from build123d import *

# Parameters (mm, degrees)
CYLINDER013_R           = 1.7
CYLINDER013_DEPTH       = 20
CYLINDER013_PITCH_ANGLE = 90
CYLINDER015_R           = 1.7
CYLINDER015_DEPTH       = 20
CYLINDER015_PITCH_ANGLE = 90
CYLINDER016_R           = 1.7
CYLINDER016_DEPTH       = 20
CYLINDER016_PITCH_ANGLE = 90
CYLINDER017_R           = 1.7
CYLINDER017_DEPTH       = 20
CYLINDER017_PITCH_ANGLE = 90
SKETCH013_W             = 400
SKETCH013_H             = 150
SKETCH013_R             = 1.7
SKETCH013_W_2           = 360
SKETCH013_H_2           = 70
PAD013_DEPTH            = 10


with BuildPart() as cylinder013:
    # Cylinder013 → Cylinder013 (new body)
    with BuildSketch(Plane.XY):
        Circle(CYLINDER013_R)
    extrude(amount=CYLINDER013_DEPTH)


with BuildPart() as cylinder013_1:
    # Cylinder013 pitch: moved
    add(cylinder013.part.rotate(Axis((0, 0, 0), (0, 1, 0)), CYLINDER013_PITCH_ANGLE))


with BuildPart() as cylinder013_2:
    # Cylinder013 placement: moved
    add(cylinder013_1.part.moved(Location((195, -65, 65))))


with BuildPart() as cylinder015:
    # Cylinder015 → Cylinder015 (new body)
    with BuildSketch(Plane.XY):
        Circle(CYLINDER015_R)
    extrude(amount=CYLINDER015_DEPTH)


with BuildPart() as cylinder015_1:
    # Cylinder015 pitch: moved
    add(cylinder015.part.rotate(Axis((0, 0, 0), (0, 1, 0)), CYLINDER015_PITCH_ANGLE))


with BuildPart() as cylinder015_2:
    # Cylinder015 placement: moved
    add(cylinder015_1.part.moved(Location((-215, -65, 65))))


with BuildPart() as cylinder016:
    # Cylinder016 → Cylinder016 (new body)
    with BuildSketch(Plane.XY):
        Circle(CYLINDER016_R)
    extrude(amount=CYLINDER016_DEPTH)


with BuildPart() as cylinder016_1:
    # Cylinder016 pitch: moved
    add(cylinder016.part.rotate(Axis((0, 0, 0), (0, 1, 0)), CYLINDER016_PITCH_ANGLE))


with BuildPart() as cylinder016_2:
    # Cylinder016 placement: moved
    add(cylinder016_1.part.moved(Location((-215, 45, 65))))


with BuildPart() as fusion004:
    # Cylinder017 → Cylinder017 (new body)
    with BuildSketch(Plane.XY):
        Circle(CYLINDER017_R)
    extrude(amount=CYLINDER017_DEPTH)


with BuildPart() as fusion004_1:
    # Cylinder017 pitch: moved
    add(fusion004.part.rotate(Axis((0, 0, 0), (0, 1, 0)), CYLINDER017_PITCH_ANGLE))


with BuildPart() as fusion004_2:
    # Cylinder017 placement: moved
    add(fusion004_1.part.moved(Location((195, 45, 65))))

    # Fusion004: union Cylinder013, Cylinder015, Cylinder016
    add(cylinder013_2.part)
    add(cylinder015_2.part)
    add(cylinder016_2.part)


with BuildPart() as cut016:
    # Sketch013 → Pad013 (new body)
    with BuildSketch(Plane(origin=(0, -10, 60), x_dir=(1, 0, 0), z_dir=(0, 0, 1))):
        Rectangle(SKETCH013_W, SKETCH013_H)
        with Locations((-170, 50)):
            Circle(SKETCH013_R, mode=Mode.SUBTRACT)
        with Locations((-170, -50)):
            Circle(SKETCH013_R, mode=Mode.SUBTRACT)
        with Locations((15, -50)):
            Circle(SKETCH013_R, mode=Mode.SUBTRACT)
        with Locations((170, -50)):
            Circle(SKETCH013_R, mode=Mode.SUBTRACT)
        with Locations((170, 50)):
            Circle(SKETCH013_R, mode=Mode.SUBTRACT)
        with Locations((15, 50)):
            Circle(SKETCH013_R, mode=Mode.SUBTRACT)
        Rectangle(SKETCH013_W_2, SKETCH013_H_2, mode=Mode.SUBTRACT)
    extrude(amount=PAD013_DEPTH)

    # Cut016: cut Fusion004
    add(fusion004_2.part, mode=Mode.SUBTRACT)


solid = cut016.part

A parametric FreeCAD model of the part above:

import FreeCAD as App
import Part
import Sketcher

V = App.Vector
Q = App.Units.Quantity


def add_polygon(sketch, points):
    """Adds a closed chain of lines whose ends are joined by coincident constraints."""
    first, n = sketch.GeometryCount, len(points)
    for a, b in zip(points, points[1:] + points[:1]):
        sketch.addGeometry(Part.LineSegment(App.Vector(*a, 0), App.Vector(*b, 0)), False)
    for i in range(n):
        sketch.addConstraint(Sketcher.Constraint("Coincident", first + i, 2, first + (i + 1) % n, 1))

doc = App.newDocument("Part")
params = doc.addObject("Spreadsheet::Sheet", "Params")
for row, (alias, value) in enumerate([
    ("sketch1_diameter", "3.4 mm"),
    ("pad1_length", "20 mm"),
    ("sketch2_diameter", "3.4 mm"),
    ("pad2_length", "20 mm"),
    ("sketch3_diameter", "3.4 mm"),
    ("pad3_length", "20 mm"),
    ("sketch4_diameter", "3.4 mm"),
    ("pad4_length", "20 mm"),
    ("sketch5_diameter", "3.4 mm"),
    ("sketch5_width", "400 mm"),
    ("sketch5_width2", "360 mm"),
    ("sketch5_height", "150 mm"),
    ("sketch5_height2", "70 mm"),
    ("pad5_length", "10 mm"),
], start=1):
    params.set(f"A{row}", alias)
    params.set(f"B{row}", "=" + value)
    params.setAlias(f"B{row}", alias)

body = doc.addObject("PartDesign::Body", "Body")

# Sketch on XY plane
sketch1 = body.newObject("Sketcher::SketchObject", "Sketch")
sketch1.AttachmentSupport = (doc.getObject("XY_Plane"), [""])
sketch1.MapMode = "FlatFace"
sketch1.addGeometry(Part.Circle(V(0, 0, 0), V(0, 0, 1), 1.7), False)
sketch1.addConstraint(Sketcher.Constraint("Coincident", 0, 3, -1, 1))
sketch1.addConstraint(Sketcher.Constraint("Diameter", 0, Q("3.4 mm")))
sketch1.setExpression("Constraints[1]", "Params.sketch1_diameter")
pad1 = body.newObject("PartDesign::Pad", "Pad")
pad1.Profile = sketch1
pad1.setExpression("Length", "Params.pad1_length")
body2 = doc.addObject("PartDesign::Body", "Body001")
doc.recompute()

body.Placement = App.Placement(V(0, 0, 0), App.Rotation(V(0, 1, 0), 90))
boolean = body2.newObject("PartDesign::Boolean", "Boolean")
boolean.Type = "Fuse"
boolean.addObjects([body])
body3 = doc.addObject("PartDesign::Body", "Body002")
doc.recompute()

body2.Placement = App.Placement(V(195, -65, 65), App.Rotation(V(0, 0, 1), 0))
boolean2 = body3.newObject("PartDesign::Boolean", "Boolean001")
boolean2.Type = "Fuse"
boolean2.addObjects([body2])
body4 = doc.addObject("PartDesign::Body", "Body003")

# Sketch on XY plane
sketch2 = body4.newObject("Sketcher::SketchObject", "Sketch001")
sketch2.AttachmentSupport = (doc.getObject("XY_Plane003"), [""])
sketch2.MapMode = "FlatFace"
sketch2.addGeometry(Part.Circle(V(0, 0, 0), V(0, 0, 1), 1.7), False)
sketch2.addConstraint(Sketcher.Constraint("Coincident", 0, 3, -1, 1))
sketch2.addConstraint(Sketcher.Constraint("Diameter", 0, Q("3.4 mm")))
sketch2.setExpression("Constraints[1]", "Params.sketch2_diameter")
pad2 = body4.newObject("PartDesign::Pad", "Pad001")
pad2.Profile = sketch2
pad2.setExpression("Length", "Params.pad2_length")
body5 = doc.addObject("PartDesign::Body", "Body004")
doc.recompute()

body4.Placement = App.Placement(V(0, 0, 0), App.Rotation(V(0, 1, 0), 90))
boolean3 = body5.newObject("PartDesign::Boolean", "Boolean002")
boolean3.Type = "Fuse"
boolean3.addObjects([body4])
body6 = doc.addObject("PartDesign::Body", "Body005")
doc.recompute()

body5.Placement = App.Placement(V(-215, -65, 65), App.Rotation(V(0, 0, 1), 0))
boolean4 = body6.newObject("PartDesign::Boolean", "Boolean003")
boolean4.Type = "Fuse"
boolean4.addObjects([body5])
body7 = doc.addObject("PartDesign::Body", "Body006")

# Sketch on XY plane
sketch3 = body7.newObject("Sketcher::SketchObject", "Sketch002")
sketch3.AttachmentSupport = (doc.getObject("XY_Plane006"), [""])
sketch3.MapMode = "FlatFace"
sketch3.addGeometry(Part.Circle(V(0, 0, 0), V(0, 0, 1), 1.7), False)
sketch3.addConstraint(Sketcher.Constraint("Coincident", 0, 3, -1, 1))
sketch3.addConstraint(Sketcher.Constraint("Diameter", 0, Q("3.4 mm")))
sketch3.setExpression("Constraints[1]", "Params.sketch3_diameter")
pad3 = body7.newObject("PartDesign::Pad", "Pad002")
pad3.Profile = sketch3
pad3.setExpression("Length", "Params.pad3_length")
body8 = doc.addObject("PartDesign::Body", "Body007")
doc.recompute()

body7.Placement = App.Placement(V(0, 0, 0), App.Rotation(V(0, 1, 0), 90))
boolean5 = body8.newObject("PartDesign::Boolean", "Boolean004")
boolean5.Type = "Fuse"
boolean5.addObjects([body7])
body9 = doc.addObject("PartDesign::Body", "Body008")
doc.recompute()

body8.Placement = App.Placement(V(-215, 45, 65), App.Rotation(V(0, 0, 1), 0))
boolean6 = body9.newObject("PartDesign::Boolean", "Boolean005")
boolean6.Type = "Fuse"
boolean6.addObjects([body8])
body10 = doc.addObject("PartDesign::Body", "Body009")

# Sketch on XY plane
sketch4 = body10.newObject("Sketcher::SketchObject", "Sketch003")
sketch4.AttachmentSupport = (doc.getObject("XY_Plane009"), [""])
sketch4.MapMode = "FlatFace"
sketch4.addGeometry(Part.Circle(V(0, 0, 0), V(0, 0, 1), 1.7), False)
sketch4.addConstraint(Sketcher.Constraint("Coincident", 0, 3, -1, 1))
sketch4.addConstraint(Sketcher.Constraint("Diameter", 0, Q("3.4 mm")))
sketch4.setExpression("Constraints[1]", "Params.sketch4_diameter")
pad4 = body10.newObject("PartDesign::Pad", "Pad003")
pad4.Profile = sketch4
pad4.setExpression("Length", "Params.pad4_length")
body11 = doc.addObject("PartDesign::Body", "Body010")
doc.recompute()

body10.Placement = App.Placement(V(0, 0, 0), App.Rotation(V(0, 1, 0), 90))
boolean7 = body11.newObject("PartDesign::Boolean", "Boolean006")
boolean7.Type = "Fuse"
boolean7.addObjects([body10])
body12 = doc.addObject("PartDesign::Body", "Body011")
body12.AllowCompound = True
doc.recompute()

body11.Placement = App.Placement(V(195, 45, 65), App.Rotation(V(0, 0, 1), 0))
boolean8 = body12.newObject("PartDesign::Boolean", "Boolean007")
boolean8.Type = "Fuse"
boolean8.addObjects([body11])
doc.recompute()

boolean9 = body12.newObject("PartDesign::Boolean", "Boolean008")
boolean9.Type = "Fuse"
boolean9.addObjects([body3])
doc.recompute()

boolean10 = body12.newObject("PartDesign::Boolean", "Boolean009")
boolean10.Type = "Fuse"
boolean10.addObjects([body6])
doc.recompute()

boolean11 = body12.newObject("PartDesign::Boolean", "Boolean010")
boolean11.Type = "Fuse"
boolean11.addObjects([body9])
body13 = doc.addObject("PartDesign::Body", "Body012")

# Sketch on XY plane
sketch5 = body13.newObject("Sketcher::SketchObject", "Sketch004")
sketch5.AttachmentSupport = (doc.getObject("XY_Plane012"), [""])
sketch5.MapMode = "FlatFace"
sketch5.AttachmentOffset = App.Placement(V(0, 0, 60), App.Rotation())
add_polygon(sketch5, [(-200, 65), (-200, -85), (200, -85), (200, 65)])  # lines 0-3
sketch5.addGeometry(Part.Circle(V(-170, -60, 0), V(0, 0, 1), 1.7), False)  # 4
sketch5.addGeometry(Part.Circle(V(15, -60, 0), V(0, 0, 1), 1.7), False)  # 5
sketch5.addGeometry(Part.Circle(V(170, -60, 0), V(0, 0, 1), 1.7), False)  # 6
sketch5.addGeometry(Part.Circle(V(-170, 40, 0), V(0, 0, 1), 1.7), False)  # 7
add_polygon(sketch5, [(180, -45), (-180, -45), (-180, 25), (180, 25)])  # lines 8-11
sketch5.addGeometry(Part.Circle(V(15, 40, 0), V(0, 0, 1), 1.7), False)  # 12
sketch5.addGeometry(Part.Circle(V(170, 40, 0), V(0, 0, 1), 1.7), False)  # 13
sketch5.addConstraint(Sketcher.Constraint("Vertical", 0))
sketch5.addConstraint(Sketcher.Constraint("Horizontal", 1))
sketch5.addConstraint(Sketcher.Constraint("Vertical", 2))
sketch5.addConstraint(Sketcher.Constraint("Horizontal", 3))
sketch5.addConstraint(Sketcher.Constraint("Horizontal", 8))
sketch5.addConstraint(Sketcher.Constraint("Vertical", 9))
sketch5.addConstraint(Sketcher.Constraint("Horizontal", 10))
sketch5.addConstraint(Sketcher.Constraint("Vertical", 11))
sketch5.addConstraint(Sketcher.Constraint("Equal", 4, 5))
sketch5.addConstraint(Sketcher.Constraint("Equal", 5, 6))
sketch5.addConstraint(Sketcher.Constraint("Equal", 6, 7))
sketch5.addConstraint(Sketcher.Constraint("Equal", 7, 12))
sketch5.addConstraint(Sketcher.Constraint("Equal", 12, 13))
sketch5.addConstraint(Sketcher.Constraint("Symmetric", 4, 3, 6, 3, -2))
sketch5.addConstraint(Sketcher.Constraint("Symmetric", 7, 3, 13, 3, -2))
sketch5.addConstraint(Sketcher.Constraint("Horizontal", 4, 3, 5, 3))
sketch5.addConstraint(Sketcher.Constraint("Horizontal", 7, 3, 12, 3))
sketch5.addConstraint(Sketcher.Constraint("Vertical", 4, 3, 7, 3))
sketch5.addConstraint(Sketcher.Constraint("Vertical", 5, 3, 12, 3))
sketch5.addConstraint(Sketcher.Constraint("Diameter", 4, Q("3.4 mm")))
sketch5.addConstraint(Sketcher.Constraint("DistanceX", 1, 1, 1, 2, Q("400 mm")))
sketch5.addConstraint(Sketcher.Constraint("DistanceX", 8, 2, 8, 1, Q("360 mm")))
sketch5.addConstraint(Sketcher.Constraint("DistanceY", 0, 2, 0, 1, Q("150 mm")))
sketch5.addConstraint(Sketcher.Constraint("DistanceY", 9, 1, 9, 2, Q("70 mm")))
sketch5.addConstraint(Sketcher.Constraint("DistanceX", 4, 3, -1, 1, Q("170 mm")))
sketch5.addConstraint(Sketcher.Constraint("DistanceY", 4, 3, -1, 1, Q("60 mm")))
sketch5.addConstraint(Sketcher.Constraint("DistanceX", -1, 1, 5, 3, Q("15 mm")))
sketch5.addConstraint(Sketcher.Constraint("DistanceY", -1, 1, 7, 3, Q("40 mm")))
sketch5.addConstraint(Sketcher.Constraint("DistanceX", 0, 2, -1, 1, Q("200 mm")))
sketch5.addConstraint(Sketcher.Constraint("DistanceY", 0, 2, -1, 1, Q("85 mm")))
sketch5.addConstraint(Sketcher.Constraint("DistanceX", 8, 2, -1, 1, Q("180 mm")))
sketch5.addConstraint(Sketcher.Constraint("DistanceY", 8, 2, -1, 1, Q("45 mm")))
sketch5.setExpression("Constraints[27]", "Params.sketch5_diameter")
sketch5.setExpression("Constraints[28]", "Params.sketch5_width")
sketch5.setExpression("Constraints[29]", "Params.sketch5_width2")
sketch5.setExpression("Constraints[30]", "Params.sketch5_height")
sketch5.setExpression("Constraints[31]", "Params.sketch5_height2")
pad5 = body13.newObject("PartDesign::Pad", "Pad004")
pad5.Profile = sketch5
pad5.setExpression("Length", "Params.pad5_length")
doc.recompute()

boolean12 = body13.newObject("PartDesign::Boolean", "Boolean011")
boolean12.Type = "Cut"
boolean12.addObjects([body12])

doc.recompute()
